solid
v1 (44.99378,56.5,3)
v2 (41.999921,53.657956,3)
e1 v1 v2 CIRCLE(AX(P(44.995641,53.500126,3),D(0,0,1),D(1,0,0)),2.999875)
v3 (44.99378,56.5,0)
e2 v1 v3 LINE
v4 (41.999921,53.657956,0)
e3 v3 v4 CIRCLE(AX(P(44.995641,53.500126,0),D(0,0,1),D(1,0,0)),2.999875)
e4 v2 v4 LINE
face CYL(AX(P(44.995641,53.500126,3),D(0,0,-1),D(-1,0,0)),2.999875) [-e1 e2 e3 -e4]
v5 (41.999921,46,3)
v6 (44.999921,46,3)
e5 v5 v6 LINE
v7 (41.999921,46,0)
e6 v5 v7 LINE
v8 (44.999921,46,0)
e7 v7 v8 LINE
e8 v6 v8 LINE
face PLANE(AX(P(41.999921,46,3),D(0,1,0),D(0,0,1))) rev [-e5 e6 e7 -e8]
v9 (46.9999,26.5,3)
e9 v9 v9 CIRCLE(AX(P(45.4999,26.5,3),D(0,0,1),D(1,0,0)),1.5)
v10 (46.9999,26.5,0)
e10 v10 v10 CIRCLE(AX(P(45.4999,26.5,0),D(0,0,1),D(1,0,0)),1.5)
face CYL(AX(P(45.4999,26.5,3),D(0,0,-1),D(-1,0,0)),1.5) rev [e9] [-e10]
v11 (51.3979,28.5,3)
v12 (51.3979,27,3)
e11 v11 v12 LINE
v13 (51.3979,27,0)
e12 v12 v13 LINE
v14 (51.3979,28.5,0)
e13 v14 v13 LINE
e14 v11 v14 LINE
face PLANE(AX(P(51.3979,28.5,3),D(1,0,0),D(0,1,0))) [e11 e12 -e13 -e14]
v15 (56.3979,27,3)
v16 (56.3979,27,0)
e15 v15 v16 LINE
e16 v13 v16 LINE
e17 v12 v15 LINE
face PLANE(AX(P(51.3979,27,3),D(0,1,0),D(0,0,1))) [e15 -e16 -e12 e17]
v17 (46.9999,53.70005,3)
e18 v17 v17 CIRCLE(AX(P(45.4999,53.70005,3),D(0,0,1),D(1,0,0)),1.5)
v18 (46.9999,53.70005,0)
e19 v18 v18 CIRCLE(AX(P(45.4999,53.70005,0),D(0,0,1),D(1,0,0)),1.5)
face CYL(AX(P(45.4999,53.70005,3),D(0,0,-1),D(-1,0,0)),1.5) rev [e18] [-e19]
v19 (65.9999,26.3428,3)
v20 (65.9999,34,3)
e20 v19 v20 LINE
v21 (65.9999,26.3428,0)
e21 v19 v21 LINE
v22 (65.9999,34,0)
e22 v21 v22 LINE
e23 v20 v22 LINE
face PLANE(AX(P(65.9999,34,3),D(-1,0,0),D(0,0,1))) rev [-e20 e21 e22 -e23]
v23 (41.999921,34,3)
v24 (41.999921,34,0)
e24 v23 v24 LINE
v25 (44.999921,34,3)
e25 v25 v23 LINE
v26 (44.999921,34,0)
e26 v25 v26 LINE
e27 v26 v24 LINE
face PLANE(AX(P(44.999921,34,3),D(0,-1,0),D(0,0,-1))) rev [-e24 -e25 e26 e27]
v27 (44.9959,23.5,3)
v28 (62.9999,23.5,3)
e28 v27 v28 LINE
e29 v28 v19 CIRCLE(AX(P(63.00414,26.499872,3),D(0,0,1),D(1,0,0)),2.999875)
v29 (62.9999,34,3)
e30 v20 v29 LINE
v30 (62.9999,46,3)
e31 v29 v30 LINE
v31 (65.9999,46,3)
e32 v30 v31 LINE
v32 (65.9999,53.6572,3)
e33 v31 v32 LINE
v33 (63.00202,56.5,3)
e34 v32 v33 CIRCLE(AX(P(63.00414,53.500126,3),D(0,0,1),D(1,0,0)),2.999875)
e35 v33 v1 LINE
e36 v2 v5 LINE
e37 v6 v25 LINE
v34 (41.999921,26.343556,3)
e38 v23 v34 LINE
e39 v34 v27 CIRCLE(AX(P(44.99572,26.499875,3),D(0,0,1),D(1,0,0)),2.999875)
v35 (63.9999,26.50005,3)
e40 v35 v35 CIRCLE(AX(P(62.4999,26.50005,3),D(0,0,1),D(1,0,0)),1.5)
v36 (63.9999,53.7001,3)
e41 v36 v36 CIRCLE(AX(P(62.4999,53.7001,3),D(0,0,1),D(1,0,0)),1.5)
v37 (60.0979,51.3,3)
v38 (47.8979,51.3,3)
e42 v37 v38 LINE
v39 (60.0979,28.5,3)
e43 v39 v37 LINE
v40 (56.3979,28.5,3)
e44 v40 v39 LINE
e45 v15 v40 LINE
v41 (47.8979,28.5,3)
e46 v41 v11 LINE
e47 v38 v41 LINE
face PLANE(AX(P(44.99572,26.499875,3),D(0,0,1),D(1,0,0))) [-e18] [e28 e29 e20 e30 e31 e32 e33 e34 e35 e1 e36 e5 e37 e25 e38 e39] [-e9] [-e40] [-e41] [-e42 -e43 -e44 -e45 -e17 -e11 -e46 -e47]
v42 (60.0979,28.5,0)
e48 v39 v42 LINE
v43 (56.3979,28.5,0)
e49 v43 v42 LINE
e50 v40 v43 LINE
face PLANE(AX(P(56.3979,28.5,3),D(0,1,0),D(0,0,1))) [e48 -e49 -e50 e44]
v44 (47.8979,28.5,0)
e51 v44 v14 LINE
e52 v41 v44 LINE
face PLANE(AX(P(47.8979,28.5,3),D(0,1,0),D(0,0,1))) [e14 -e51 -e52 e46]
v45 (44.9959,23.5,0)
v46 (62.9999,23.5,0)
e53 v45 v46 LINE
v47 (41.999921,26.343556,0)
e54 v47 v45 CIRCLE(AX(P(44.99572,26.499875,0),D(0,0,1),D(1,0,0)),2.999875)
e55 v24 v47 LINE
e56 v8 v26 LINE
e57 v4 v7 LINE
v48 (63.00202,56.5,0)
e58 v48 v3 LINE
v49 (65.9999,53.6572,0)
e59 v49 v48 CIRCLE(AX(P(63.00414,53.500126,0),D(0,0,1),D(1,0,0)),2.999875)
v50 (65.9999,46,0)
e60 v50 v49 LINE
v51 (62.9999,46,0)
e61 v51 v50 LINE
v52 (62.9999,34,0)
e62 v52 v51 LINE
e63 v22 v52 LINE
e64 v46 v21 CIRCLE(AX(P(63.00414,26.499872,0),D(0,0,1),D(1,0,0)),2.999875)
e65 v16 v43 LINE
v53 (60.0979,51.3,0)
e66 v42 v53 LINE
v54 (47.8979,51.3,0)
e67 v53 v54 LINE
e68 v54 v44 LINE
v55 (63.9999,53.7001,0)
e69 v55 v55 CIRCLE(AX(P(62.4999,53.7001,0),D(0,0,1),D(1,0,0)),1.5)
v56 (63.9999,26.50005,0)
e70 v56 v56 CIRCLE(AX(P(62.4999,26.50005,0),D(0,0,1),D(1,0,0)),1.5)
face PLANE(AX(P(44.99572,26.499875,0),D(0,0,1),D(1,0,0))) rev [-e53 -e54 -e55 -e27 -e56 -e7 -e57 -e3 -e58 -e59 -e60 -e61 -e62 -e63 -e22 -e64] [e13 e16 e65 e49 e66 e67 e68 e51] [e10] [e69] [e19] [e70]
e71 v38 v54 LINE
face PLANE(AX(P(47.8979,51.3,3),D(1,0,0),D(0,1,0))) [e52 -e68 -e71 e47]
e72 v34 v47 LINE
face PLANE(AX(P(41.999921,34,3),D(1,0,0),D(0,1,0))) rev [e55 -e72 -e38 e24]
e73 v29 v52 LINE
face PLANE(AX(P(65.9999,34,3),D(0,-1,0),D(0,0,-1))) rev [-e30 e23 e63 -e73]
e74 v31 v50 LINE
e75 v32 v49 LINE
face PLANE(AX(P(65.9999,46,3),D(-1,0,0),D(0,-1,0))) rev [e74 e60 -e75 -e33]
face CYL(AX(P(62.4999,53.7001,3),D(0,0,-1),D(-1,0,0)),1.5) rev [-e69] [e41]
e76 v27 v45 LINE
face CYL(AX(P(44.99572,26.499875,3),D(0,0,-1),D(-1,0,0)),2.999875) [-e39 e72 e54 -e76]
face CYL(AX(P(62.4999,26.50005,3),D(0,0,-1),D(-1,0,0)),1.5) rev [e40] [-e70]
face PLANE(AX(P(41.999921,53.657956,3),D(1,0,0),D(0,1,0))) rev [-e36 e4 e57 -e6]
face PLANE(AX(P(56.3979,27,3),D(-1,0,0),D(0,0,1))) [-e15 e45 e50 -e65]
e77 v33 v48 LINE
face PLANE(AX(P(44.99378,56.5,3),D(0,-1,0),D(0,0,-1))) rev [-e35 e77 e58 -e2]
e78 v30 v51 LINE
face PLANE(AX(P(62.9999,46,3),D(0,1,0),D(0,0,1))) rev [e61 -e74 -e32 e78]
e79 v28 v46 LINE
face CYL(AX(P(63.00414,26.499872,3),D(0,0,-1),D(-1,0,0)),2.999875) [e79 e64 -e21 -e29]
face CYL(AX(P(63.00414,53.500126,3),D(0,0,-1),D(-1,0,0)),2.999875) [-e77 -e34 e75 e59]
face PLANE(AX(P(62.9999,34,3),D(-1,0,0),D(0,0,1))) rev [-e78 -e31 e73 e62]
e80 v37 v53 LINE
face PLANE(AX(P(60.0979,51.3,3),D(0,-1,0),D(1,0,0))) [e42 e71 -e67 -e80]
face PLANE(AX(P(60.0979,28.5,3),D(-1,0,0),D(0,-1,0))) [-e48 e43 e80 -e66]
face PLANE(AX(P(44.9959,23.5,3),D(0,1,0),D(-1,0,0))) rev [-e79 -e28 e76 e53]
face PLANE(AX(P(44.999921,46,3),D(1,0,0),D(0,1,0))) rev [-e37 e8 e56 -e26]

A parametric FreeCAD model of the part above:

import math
import FreeCAD as App
import Part
import Sketcher

doc = App.newDocument("Part")
params = doc.addObject("Spreadsheet::Sheet", "Params")
for row, (alias, value) in enumerate([
    ("sketch1_diameter", "3 mm"),
    ("sketch1_width", "3 mm"),
    ("sketch1_width2", "5 mm"),
    ("sketch1_height", "12 mm"),
    ("sketch1_width3", "12.2 mm"),
    ("pad1_length", "3 mm"),
], start=1):
    params.set(f"A{row}", alias)
    params.set(f"B{row}", "=" + value)
    params.setAlias(f"B{row}", alias)

body = doc.addObject("PartDesign::Body", "Body")

# Sketch on XY plane
sketch1 = body.newObject("Sketcher::SketchObject", "Sketch")
sketch1.AttachmentSupport = (doc.getObject("XY_Plane"), [""])
sketch1.MapMode = "FlatFace"
sketch1.addGeometry([
    Part.LineSegment(App.Vector(41.999921, 34, 0), App.Vector(41.999921, 26.343556, 0)),  # 0
    Part.ArcOfCircle(Part.Circle(App.Vector(44.99572, 26.499875, 0), App.Vector(0, 0, 1), 2.999875), math.radians(-177.013054), math.radians(-89.996566)),  # 1
    Part.LineSegment(App.Vector(44.9959, 23.5, 0), App.Vector(62.9999, 23.5, 0)),  # 2
    Part.ArcOfCircle(Part.Circle(App.Vector(63.00414, 26.499872, 0), App.Vector(0, 0, 1), 2.999875), math.radians(-90.080982), math.radians(-3.00135)),  # 3
    Part.LineSegment(App.Vector(65.9999, 26.3428, 0), App.Vector(65.9999, 34, 0)),  # 4
    Part.LineSegment(App.Vector(65.9999, 34, 0), App.Vector(62.9999, 34, 0)),  # 5
    Part.LineSegment(App.Vector(62.9999, 34, 0), App.Vector(62.9999, 46, 0)),  # 6
    Part.LineSegment(App.Vector(62.9999, 46, 0), App.Vector(65.9999, 46, 0)),  # 7
    Part.LineSegment(App.Vector(65.9999, 46, 0), App.Vector(65.9999, 53.6572, 0)),  # 8
    Part.ArcOfCircle(Part.Circle(App.Vector(63.00414, 53.500126, 0), App.Vector(0, 0, 1), 2.999875), math.radians(3.001393), math.radians(90.040492)),  # 9
    Part.LineSegment(App.Vector(63.00202, 56.5, 0), App.Vector(44.99378, 56.5, 0)),  # 10
    Part.ArcOfCircle(Part.Circle(App.Vector(44.995641, 53.500126, 0), App.Vector(0, 0, 1), 2.999875), math.radians(90.035545), math.radians(176.984142)),  # 11
    Part.LineSegment(App.Vector(41.999921, 53.657956, 0), App.Vector(41.999921, 46, 0)),  # 12
    Part.LineSegment(App.Vector(41.999921, 46, 0), App.Vector(44.999921, 46, 0)),  # 13
    Part.LineSegment(App.Vector(44.999921, 46, 0), App.Vector(44.999921, 34, 0)),  # 14
    Part.LineSegment(App.Vector(44.999921, 34, 0), App.Vector(41.999921, 34, 0)),  # 15
    Part.Circle(App.Vector(45.4999, 26.5, 0), App.Vector(0, 0, 1), 1.5),  # 16
    Part.LineSegment(App.Vector(47.8979, 28.5, 0), App.Vector(47.8979, 51.3, 0)),  # 17
    Part.LineSegment(App.Vector(47.8979, 51.3, 0), App.Vector(60.0979, 51.3, 0)),  # 18
    Part.LineSegment(App.Vector(60.0979, 51.3, 0), App.Vector(60.0979, 28.5, 0)),  # 19
    Part.LineSegment(App.Vector(60.0979, 28.5, 0), App.Vector(56.3979, 28.5, 0)),  # 20
    Part.LineSegment(App.Vector(56.3979, 28.5, 0), App.Vector(56.3979, 27, 0)),  # 21
    Part.LineSegment(App.Vector(56.3979, 27, 0), App.Vector(51.3979, 27, 0)),  # 22
    Part.LineSegment(App.Vector(51.3979, 27, 0), App.Vector(51.3979, 28.5, 0)),  # 23
    Part.LineSegment(App.Vector(51.3979, 28.5, 0), App.Vector(47.8979, 28.5, 0)),  # 24
    Part.Circle(App.Vector(62.4999, 26.50005, 0), App.Vector(0, 0, 1), 1.5),  # 25
    Part.Circle(App.Vector(45.4999, 53.70005, 0), App.Vector(0, 0, 1), 1.5),  # 26
    Part.Circle(App.Vector(62.4999, 53.7001, 0), App.Vector(0, 0, 1), 1.5),  # 27
], False)
sketch1.addConstraint([
    Sketcher.Constraint("Coincident", 0, 2, 1, 1),
    Sketcher.Constraint("Coincident", 1, 2, 2, 1),
    Sketcher.Constraint("Coincident", 2, 2, 3, 1),
    Sketcher.Constraint("Coincident", 3, 2, 4, 1),
    Sketcher.Constraint("Coincident", 4, 2, 5, 1),
    Sketcher.Constraint("Coincident", 5, 2, 6, 1),
    Sketcher.Constraint("Coincident", 6, 2, 7, 1),
    Sketcher.Constraint("Coincident", 7, 2, 8, 1),
    Sketcher.Constraint("Coincident", 8, 2, 9, 1),
    Sketcher.Constraint("Coincident", 9, 2, 10, 1),
    Sketcher.Constraint("Coincident", 10, 2, 11, 1),
    Sketcher.Constraint("Coincident", 11, 2, 12, 1),
    Sketcher.Constraint("Coincident", 12, 2, 13, 1),
    Sketcher.Constraint("Coincident", 13, 2, 14, 1),
    Sketcher.Constraint("Coincident", 14, 2, 15, 1),
    Sketcher.Constraint("Coincident", 15, 2, 0, 1),
    Sketcher.Constraint("Coincident", 17, 2, 18, 1),
    Sketcher.Constraint("Coincident", 18, 2, 19, 1),
    Sketcher.Constraint("Coincident", 19, 2, 20, 1),
    Sketcher.Constraint("Coincident", 20, 2, 21, 1),
    Sketcher.Constraint("Coincident", 21, 2, 22, 1),
    Sketcher.Constraint("Coincident", 22, 2, 23, 1),
    Sketcher.Constraint("Coincident", 23, 2, 24, 1),
    Sketcher.Constraint("Coincident", 24, 2, 17, 1),
    Sketcher.Constraint("Vertical", 0),
    Sketcher.Constraint("Horizontal", 2),
    Sketcher.Constraint("Vertical", 4),
    Sketcher.Constraint("Horizontal", 5),
    Sketcher.Constraint("Vertical", 6),
    Sketcher.Constraint("Horizontal", 7),
    Sketcher.Constraint("Vertical", 8),
    Sketcher.Constraint("Horizontal", 10),
    Sketcher.Constraint("Vertical", 12),
    Sketcher.Constraint("Horizontal", 13),
    Sketcher.Constraint("Vertical", 14),
    Sketcher.Constraint("Horizontal", 15),
    Sketcher.Constraint("Vertical", 17),
    Sketcher.Constraint("Horizontal", 18),
    Sketcher.Constraint("Vertical", 19),
    Sketcher.Constraint("Horizontal", 20),
    Sketcher.Constraint("Vertical", 21),
    Sketcher.Constraint("Horizontal", 22),
    Sketcher.Constraint("Vertical", 23),
    Sketcher.Constraint("Horizontal", 24),
    Sketcher.Constraint("Equal", 1, 3),
    Sketcher.Constraint("Equal", 3, 9),
    Sketcher.Constraint("Equal", 9, 11),
    Sketcher.Constraint("Equal", 16, 25),
    Sketcher.Constraint("Equal", 25, 26),
    Sketcher.Constraint("Equal", 26, 27),
    Sketcher.Constraint("Horizontal", 7, 2, 12, 2),
    Sketcher.Constraint("Horizontal", 5, 2, 14, 2),
    Sketcher.Constraint("Horizontal", 20, 2, 23, 2),
    Sketcher.Constraint("Vertical", 3, 3, 9, 3),
    Sketcher.Constraint("Vertical", 16, 3, 26, 3),
    Sketcher.Constraint("Vertical", 25, 3, 27, 3),
    Sketcher.Constraint("Vertical", 2, 2, 5, 2),
    Sketcher.Constraint("Vertical", 4, 2, 7, 2),
    Sketcher.Constraint("Vertical", 0, 2, 11, 2),
    Sketcher.Constraint("Equal", 7, 13),
    Sketcher.Constraint("Equal", 4, 8),
    Sketcher.Constraint("Diameter", 16, 3.0),
    Sketcher.Constraint("DistanceX", 5, 2, 5, 1, 3.0),
    Sketcher.Constraint("DistanceX", 22, 2, 22, 1, 5.0),
    Sketcher.Constraint("DistanceY", 6, 1, 6, 2, 12.0),
    Sketcher.Constraint("DistanceX", 18, 1, 18, 2, 12.2),
    Sketcher.Constraint("DistanceX", 20, 2, 20, 1, 3.7),
    Sketcher.Constraint("DistanceY", 17, 1, 17, 2, 22.8),
    Sketcher.Constraint("DistanceY", 21, 2, 21, 1, 1.5),
    Sketcher.Constraint("DistanceY", -1, 1, 4, 2, 34.0),
    Sketcher.Constraint("DistanceY", -1, 1, 21, 2, 27.0),
    Sketcher.Constraint("DistanceX", 16, 3, 25, 3, 17.0),
    Sketcher.Constraint("DistanceY", 1, 2, 16, 3, 3.0),
    Sketcher.Constraint("DistanceY", 2, 2, 19, 2, 5.0),
    Sketcher.Constraint("DistanceY", 25, 3, 26, 3, 27.2),
    Sketcher.Constraint("DistanceX", 25, 3, 2, 2, 0.5),
    Sketcher.Constraint("DistanceX", 2, 1, 2, 2, 18.004),
    Sketcher.Constraint("DistanceY", 4, 1, 4, 2, 7.6572),
    Sketcher.Constraint("Radius", 1, 2.999875),
    Sketcher.Constraint("DistanceX", 26, 3, 17, 2, 2.398),
    Sketcher.Constraint("DistanceX", 10, 2, 10, 1, 18.00824),
    Sketcher.Constraint("DistanceX", -1, 1, 16, 3, 45.4999),
    Sketcher.Constraint("DistanceY", -1, 1, 27, 3, 53.7001),
    Sketcher.Constraint("DistanceX", 11, 3, 9, 3, 18.008499),
    Sketcher.Constraint("DistanceX", 0, 2, 1, 3, 2.995799),
    Sketcher.Constraint("DistanceY", 12, 2, 12, 1, 7.657956),
    Sketcher.Constraint("DistanceY", -1, 1, 25, 3, 26.50005),
    Sketcher.Constraint("DistanceX", -1, 1, 9, 2, 63.00202),
])
sketch1.setExpression("Constraints[61]", "Params.sketch1_diameter")
sketch1.setExpression("Constraints[62]", "Params.sketch1_width")
sketch1.setExpression("Constraints[63]", "Params.sketch1_width2")
sketch1.setExpression("Constraints[64]", "Params.sketch1_height")
sketch1.setExpression("Constraints[65]", "Params.sketch1_width3")
pad1 = body.newObject("PartDesign::Pad", "Pad")
pad1.Profile = sketch1
pad1.setExpression("Length", "Params.pad1_length")

doc.recompute()
